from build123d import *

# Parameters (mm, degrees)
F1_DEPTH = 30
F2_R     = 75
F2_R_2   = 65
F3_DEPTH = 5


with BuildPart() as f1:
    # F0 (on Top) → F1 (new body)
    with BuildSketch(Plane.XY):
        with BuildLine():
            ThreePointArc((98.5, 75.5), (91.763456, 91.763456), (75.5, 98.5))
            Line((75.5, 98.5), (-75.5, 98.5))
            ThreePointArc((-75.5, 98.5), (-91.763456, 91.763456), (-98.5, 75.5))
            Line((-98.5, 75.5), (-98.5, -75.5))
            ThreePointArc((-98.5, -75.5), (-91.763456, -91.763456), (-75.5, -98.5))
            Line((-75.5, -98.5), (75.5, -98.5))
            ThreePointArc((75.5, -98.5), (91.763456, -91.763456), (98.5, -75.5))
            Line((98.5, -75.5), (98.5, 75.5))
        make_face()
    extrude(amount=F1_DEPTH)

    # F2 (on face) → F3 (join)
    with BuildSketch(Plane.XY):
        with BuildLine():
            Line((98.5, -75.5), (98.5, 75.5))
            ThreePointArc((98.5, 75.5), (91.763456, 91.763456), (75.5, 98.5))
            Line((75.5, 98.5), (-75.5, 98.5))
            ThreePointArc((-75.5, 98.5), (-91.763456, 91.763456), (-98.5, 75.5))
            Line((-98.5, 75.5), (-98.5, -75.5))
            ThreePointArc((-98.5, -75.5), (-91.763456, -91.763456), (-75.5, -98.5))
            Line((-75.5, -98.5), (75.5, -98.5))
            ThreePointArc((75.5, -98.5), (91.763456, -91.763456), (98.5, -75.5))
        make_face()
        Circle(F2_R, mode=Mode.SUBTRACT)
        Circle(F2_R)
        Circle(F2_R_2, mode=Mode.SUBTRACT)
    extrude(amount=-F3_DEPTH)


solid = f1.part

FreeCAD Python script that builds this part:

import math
import FreeCAD as App
import Part
import Sketcher
from FreeCAD import Vector

doc = App.newDocument("Part")
body = doc.addObject("PartDesign::Body", "Body")

sketch1 = doc.addObject("Sketcher::SketchObject", "Sketch")
body.addObject(sketch1)
sketch1.AttachmentSupport = (doc.XY_Plane, [""])
sketch1.MapMode = "FlatFace"
sketch1.addGeometry(Part.ArcOfCircle(Part.Circle(Vector(76, 76, 0), Vector(0, 0, 1), 23), math.radians(0), math.radians(90)), False)
sketch1.addGeometry(Part.LineSegment(Vector(76, 98, 0), Vector(-76, 98, 0)), False)
sketch1.addGeometry(Part.ArcOfCircle(Part.Circle(Vector(-76, 76, 0), Vector(0, 0, 1), 23), math.radians(90), math.radians(180)), False)
sketch1.addGeometry(Part.LineSegment(Vector(-98, 76, 0), Vector(-98, -76, 0)), False)
sketch1.addGeometry(Part.ArcOfCircle(Part.Circle(Vector(-76, -76, 0), Vector(0, 0, 1), 23), math.radians(180), math.radians(270)), False)
sketch1.addGeometry(Part.LineSegment(Vector(-76, -98, 0), Vector(76, -98, 0)), False)
sketch1.addGeometry(Part.ArcOfCircle(Part.Circle(Vector(76, -76, 0), Vector(0, 0, 1), 23), math.radians(-90), math.radians(0)), False)
sketch1.addGeometry(Part.LineSegment(Vector(98, -76, 0), Vector(98, 76, 0)), False)
sketch1.addConstraint(Sketcher.Constraint("Tangent", 0, 2, 1, 1))
sketch1.addConstraint(Sketcher.Constraint("Tangent", 1, 2, 2, 1))
sketch1.addConstraint(Sketcher.Constraint("Tangent", 2, 2, 3, 1))
sketch1.addConstraint(Sketcher.Constraint("Tangent", 3, 2, 4, 1))
sketch1.addConstraint(Sketcher.Constraint("Tangent", 4, 2, 5, 1))
sketch1.addConstraint(Sketcher.Constraint("Tangent", 5, 2, 6, 1))
sketch1.addConstraint(Sketcher.Constraint("Tangent", 6, 2, 7, 1))
sketch1.addConstraint(Sketcher.Constraint("Tangent", 7, 2, 0, 1))
sketch1.addConstraint(Sketcher.Constraint("Horizontal", 1))
sketch1.addConstraint(Sketcher.Constraint("Vertical", 3))
sketch1.addConstraint(Sketcher.Constraint("Horizontal", 5))
sketch1.addConstraint(Sketcher.Constraint("Vertical", 7))
sketch1.addConstraint(Sketcher.Constraint("Equal", 0, 2))
sketch1.addConstraint(Sketcher.Constraint("Equal", 2, 4))
sketch1.addConstraint(Sketcher.Constraint("Equal", 4, 6))
sketch1.addConstraint(Sketcher.Constraint("Symmetric", 0, 3, 4, 3, -1, 1))
sketch1.addConstraint(Sketcher.Constraint("Equal", 5, 3))
sketch1.addConstraint(Sketcher.Constraint("Radius", 0, 23.0))
sketch1.addConstraint(Sketcher.Constraint("DistanceX", 1, 2, 1, 1, 151.0))
pad1 = doc.addObject("PartDesign::Pad", "Pad")
body.addObject(pad1)
pad1.Profile = sketch1
pad1.Length = 30

sketch2 = doc.addObject("Sketcher::SketchObject", "Sketch001")
body.addObject(sketch2)
sketch2.AttachmentSupport = (doc.XY_Plane, [""])
sketch2.MapMode = "FlatFace"
sketch2.addGeometry(Part.LineSegment(Vector(98, -76, 0), Vector(98, 76, 0)), False)
sketch2.addGeometry(Part.ArcOfCircle(Part.Circle(Vector(76, 76, 0), Vector(0, 0, 1), 23), math.radians(0), math.radians(90)), False)
sketch2.addGeometry(Part.LineSegment(Vector(76, 98, 0), Vector(-76, 98, 0)), False)
sketch2.addGeometry(Part.ArcOfCircle(Part.Circle(Vector(-76, 76, 0), Vector(0, 0, 1), 23), math.radians(90), math.radians(180)), False)
sketch2.addGeometry(Part.LineSegment(Vector(-98, 76, 0), Vector(-98, -76, 0)), False)
sketch2.addGeometry(Part.ArcOfCircle(Part.Circle(Vector(-76, -76, 0), Vector(0, 0, 1), 23), math.radians(180), math.radians(270)), False)
sketch2.addGeometry(Part.LineSegment(Vector(-76, -98, 0), Vector(76, -98, 0)), False)
sketch2.addGeometry(Part.ArcOfCircle(Part.Circle(Vector(76, -76, 0), Vector(0, 0, 1), 23), math.radians(-90), math.radians(0)), False)
sketch2.addGeometry(Part.Circle(Vector(0, 0, 0), Vector(0, 0, 1), 65), False)
sketch2.addConstraint(Sketcher.Constraint("Tangent", 0, 2, 1, 1))
sketch2.addConstraint(Sketcher.Constraint("Tangent", 1, 2, 2, 1))
sketch2.addConstraint(Sketcher.Constraint("Tangent", 2, 2, 3, 1))
sketch2.addConstraint(Sketcher.Constraint("Tangent", 3, 2, 4, 1))
sketch2.addConstraint(Sketcher.Constraint("Tangent", 4, 2, 5, 1))
sketch2.addConstraint(Sketcher.Constraint("Tangent", 5, 2, 6, 1))
sketch2.addConstraint(Sketcher.Constraint("Tangent", 6, 2, 7, 1))
sketch2.addConstraint(Sketcher.Constraint("Tangent", 7, 2, 0, 1))
sketch2.addConstraint(Sketcher.Constraint("Vertical", 0))
sketch2.addConstraint(Sketcher.Constraint("Horizontal", 2))
sketch2.addConstraint(Sketcher.Constraint("Vertical", 4))
sketch2.addConstraint(Sketcher.Constraint("Horizontal", 6))
sketch2.addConstraint(Sketcher.Constraint("Coincident", 8, 3, -1, 1))
sketch2.addConstraint(Sketcher.Constraint("Equal", 1, 3))
sketch2.addConstraint(Sketcher.Constraint("Equal", 3, 5))
sketch2.addConstraint(Sketcher.Constraint("Equal", 5, 7))
sketch2.addConstraint(Sketcher.Constraint("Symmetric", 1, 3, 5, 3, -1, 1))
sketch2.addConstraint(Sketcher.Constraint("Equal", 6, 0))
sketch2.addConstraint(Sketcher.Constraint("Diameter", 8, 130.0))
sketch2.addConstraint(Sketcher.Constraint("Radius", 1, 23.0))
sketch2.addConstraint(Sketcher.Constraint("DistanceX", 2, 2, 2, 1, 151.0))
pad2 = doc.addObject("PartDesign::Pad", "Pad001")
body.addObject(pad2)
pad2.Profile = sketch2
pad2.Length = 5
pad2.Reversed = True

doc.recompute()
